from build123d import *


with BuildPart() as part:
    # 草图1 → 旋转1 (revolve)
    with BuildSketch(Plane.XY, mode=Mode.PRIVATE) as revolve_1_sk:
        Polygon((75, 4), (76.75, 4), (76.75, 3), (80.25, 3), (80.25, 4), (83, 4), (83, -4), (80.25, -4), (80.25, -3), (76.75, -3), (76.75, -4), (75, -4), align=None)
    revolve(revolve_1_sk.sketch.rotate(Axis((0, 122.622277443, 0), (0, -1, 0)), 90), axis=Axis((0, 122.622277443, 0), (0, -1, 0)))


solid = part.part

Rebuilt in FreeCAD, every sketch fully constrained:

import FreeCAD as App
import Part
import Sketcher
from FreeCAD import Vector

doc = App.newDocument("Part")
body = doc.addObject("PartDesign::Body", "Body")

# Sketch on XY plane
sketch1 = body.newObject("Sketcher::SketchObject", "Sketch")
sketch1.AttachmentSupport = (doc.getObject("XY_Plane"), [""])
sketch1.MapMode = "FlatFace"
sketch1.addGeometry(Part.LineSegment(Vector(76.8, 4, 0), Vector(75, 4, 0)), False)
sketch1.addGeometry(Part.LineSegment(Vector(75, 4, 0), Vector(75, -4, 0)), False)
sketch1.addGeometry(Part.LineSegment(Vector(75, -4, 0), Vector(76.8, -4, 0)), False)
sketch1.addGeometry(Part.LineSegment(Vector(76.8, -4, 0), Vector(76.8, -3, 0)), False)
sketch1.addGeometry(Part.LineSegment(Vector(76.8, -3, 0), Vector(80.2, -3, 0)), False)
sketch1.addGeometry(Part.LineSegment(Vector(80.2, -3, 0), Vector(80.2, -4, 0)), False)
sketch1.addGeometry(Part.LineSegment(Vector(80.2, -4, 0), Vector(83, -4, 0)), False)
sketch1.addGeometry(Part.LineSegment(Vector(83, -4, 0), Vector(83, 4, 0)), False)
sketch1.addGeometry(Part.LineSegment(Vector(83, 4, 0), Vector(80.2, 4, 0)), False)
sketch1.addGeometry(Part.LineSegment(Vector(80.2, 4, 0), Vector(80.2, 3, 0)), False)
sketch1.addGeometry(Part.LineSegment(Vector(80.2, 3, 0), Vector(76.8, 3, 0)), False)
sketch1.addGeometry(Part.LineSegment(Vector(76.8, 3, 0), Vector(76.8, 4, 0)), False)
sketch1.addConstraint(Sketcher.Constraint("Coincident", 0, 2, 1, 1))
sketch1.addConstraint(Sketcher.Constraint("Coincident", 1, 2, 2, 1))
sketch1.addConstraint(Sketcher.Constraint("Coincident", 2, 2, 3, 1))
sketch1.addConstraint(Sketcher.Constraint("Coincident", 3, 2, 4, 1))
sketch1.addConstraint(Sketcher.Constraint("Coincident", 4, 2, 5, 1))
sketch1.addConstraint(Sketcher.Constraint("Coincident", 5, 2, 6, 1))
sketch1.addConstraint(Sketcher.Constraint("Coincident", 6, 2, 7, 1))
sketch1.addConstraint(Sketcher.Constraint("Coincident", 7, 2, 8, 1))
sketch1.addConstraint(Sketcher.Constraint("Coincident", 8, 2, 9, 1))
sketch1.addConstraint(Sketcher.Constraint("Coincident", 9, 2, 10, 1))
sketch1.addConstraint(Sketcher.Constraint("Coincident", 10, 2, 11, 1))
sketch1.addConstraint(Sketcher.Constraint("Coincident", 11, 2, 0, 1))
sketch1.addConstraint(Sketcher.Constraint("Horizontal", 0))
sketch1.addConstraint(Sketcher.Constraint("Vertical", 1))
sketch1.addConstraint(Sketcher.Constraint("Horizontal", 2))
sketch1.addConstraint(Sketcher.Constraint("Vertical", 3))
sketch1.addConstraint(Sketcher.Constraint("Horizontal", 4))
sketch1.addConstraint(Sketcher.Constraint("Vertical", 5))
sketch1.addConstraint(Sketcher.Constraint("Horizontal", 6))
sketch1.addConstraint(Sketcher.Constraint("Vertical", 7))
sketch1.addConstraint(Sketcher.Constraint("Horizontal", 8))
sketch1.addConstraint(Sketcher.Constraint("Vertical", 9))
sketch1.addConstraint(Sketcher.Constraint("Horizontal", 10))
sketch1.addConstraint(Sketcher.Constraint("Vertical", 11))
sketch1.addConstraint(Sketcher.Constraint("Symmetric", 5, 2, 8, 2, -1))
sketch1.addConstraint(Sketcher.Constraint("Symmetric", 3, 2, 10, 2, -1))
sketch1.addConstraint(Sketcher.Constraint("Horizontal", 2, 2, 5, 2))
sketch1.addConstraint(Sketcher.Constraint("Horizontal", 0, 2, 7, 2))
sketch1.addConstraint(Sketcher.Constraint("DistanceY", 1, 2, 1, 1, 8.0))
sketch1.addConstraint(Sketcher.Constraint("DistanceY", 3, 1, 3, 2, 1.0))
sketch1.addConstraint(Sketcher.Constraint("DistanceX", 4, 1, 4, 2, 3.5))
sketch1.addConstraint(Sketcher.Constraint("DistanceX", -1, 1, 0, 2, 75.0))
sketch1.addConstraint(Sketcher.Constraint("DistanceX", -1, 1, 6, 2, 83.0))
sketch1.addConstraint(Sketcher.Constraint("DistanceX", 0, 2, 0, 1, 1.75))
revolution = body.newObject("PartDesign::Revolution", "Revolution")
revolution.Profile = sketch1
revolution.ReferenceAxis = (sketch1, ["V_Axis"])
revolution.Angle = 360

doc.recompute()
